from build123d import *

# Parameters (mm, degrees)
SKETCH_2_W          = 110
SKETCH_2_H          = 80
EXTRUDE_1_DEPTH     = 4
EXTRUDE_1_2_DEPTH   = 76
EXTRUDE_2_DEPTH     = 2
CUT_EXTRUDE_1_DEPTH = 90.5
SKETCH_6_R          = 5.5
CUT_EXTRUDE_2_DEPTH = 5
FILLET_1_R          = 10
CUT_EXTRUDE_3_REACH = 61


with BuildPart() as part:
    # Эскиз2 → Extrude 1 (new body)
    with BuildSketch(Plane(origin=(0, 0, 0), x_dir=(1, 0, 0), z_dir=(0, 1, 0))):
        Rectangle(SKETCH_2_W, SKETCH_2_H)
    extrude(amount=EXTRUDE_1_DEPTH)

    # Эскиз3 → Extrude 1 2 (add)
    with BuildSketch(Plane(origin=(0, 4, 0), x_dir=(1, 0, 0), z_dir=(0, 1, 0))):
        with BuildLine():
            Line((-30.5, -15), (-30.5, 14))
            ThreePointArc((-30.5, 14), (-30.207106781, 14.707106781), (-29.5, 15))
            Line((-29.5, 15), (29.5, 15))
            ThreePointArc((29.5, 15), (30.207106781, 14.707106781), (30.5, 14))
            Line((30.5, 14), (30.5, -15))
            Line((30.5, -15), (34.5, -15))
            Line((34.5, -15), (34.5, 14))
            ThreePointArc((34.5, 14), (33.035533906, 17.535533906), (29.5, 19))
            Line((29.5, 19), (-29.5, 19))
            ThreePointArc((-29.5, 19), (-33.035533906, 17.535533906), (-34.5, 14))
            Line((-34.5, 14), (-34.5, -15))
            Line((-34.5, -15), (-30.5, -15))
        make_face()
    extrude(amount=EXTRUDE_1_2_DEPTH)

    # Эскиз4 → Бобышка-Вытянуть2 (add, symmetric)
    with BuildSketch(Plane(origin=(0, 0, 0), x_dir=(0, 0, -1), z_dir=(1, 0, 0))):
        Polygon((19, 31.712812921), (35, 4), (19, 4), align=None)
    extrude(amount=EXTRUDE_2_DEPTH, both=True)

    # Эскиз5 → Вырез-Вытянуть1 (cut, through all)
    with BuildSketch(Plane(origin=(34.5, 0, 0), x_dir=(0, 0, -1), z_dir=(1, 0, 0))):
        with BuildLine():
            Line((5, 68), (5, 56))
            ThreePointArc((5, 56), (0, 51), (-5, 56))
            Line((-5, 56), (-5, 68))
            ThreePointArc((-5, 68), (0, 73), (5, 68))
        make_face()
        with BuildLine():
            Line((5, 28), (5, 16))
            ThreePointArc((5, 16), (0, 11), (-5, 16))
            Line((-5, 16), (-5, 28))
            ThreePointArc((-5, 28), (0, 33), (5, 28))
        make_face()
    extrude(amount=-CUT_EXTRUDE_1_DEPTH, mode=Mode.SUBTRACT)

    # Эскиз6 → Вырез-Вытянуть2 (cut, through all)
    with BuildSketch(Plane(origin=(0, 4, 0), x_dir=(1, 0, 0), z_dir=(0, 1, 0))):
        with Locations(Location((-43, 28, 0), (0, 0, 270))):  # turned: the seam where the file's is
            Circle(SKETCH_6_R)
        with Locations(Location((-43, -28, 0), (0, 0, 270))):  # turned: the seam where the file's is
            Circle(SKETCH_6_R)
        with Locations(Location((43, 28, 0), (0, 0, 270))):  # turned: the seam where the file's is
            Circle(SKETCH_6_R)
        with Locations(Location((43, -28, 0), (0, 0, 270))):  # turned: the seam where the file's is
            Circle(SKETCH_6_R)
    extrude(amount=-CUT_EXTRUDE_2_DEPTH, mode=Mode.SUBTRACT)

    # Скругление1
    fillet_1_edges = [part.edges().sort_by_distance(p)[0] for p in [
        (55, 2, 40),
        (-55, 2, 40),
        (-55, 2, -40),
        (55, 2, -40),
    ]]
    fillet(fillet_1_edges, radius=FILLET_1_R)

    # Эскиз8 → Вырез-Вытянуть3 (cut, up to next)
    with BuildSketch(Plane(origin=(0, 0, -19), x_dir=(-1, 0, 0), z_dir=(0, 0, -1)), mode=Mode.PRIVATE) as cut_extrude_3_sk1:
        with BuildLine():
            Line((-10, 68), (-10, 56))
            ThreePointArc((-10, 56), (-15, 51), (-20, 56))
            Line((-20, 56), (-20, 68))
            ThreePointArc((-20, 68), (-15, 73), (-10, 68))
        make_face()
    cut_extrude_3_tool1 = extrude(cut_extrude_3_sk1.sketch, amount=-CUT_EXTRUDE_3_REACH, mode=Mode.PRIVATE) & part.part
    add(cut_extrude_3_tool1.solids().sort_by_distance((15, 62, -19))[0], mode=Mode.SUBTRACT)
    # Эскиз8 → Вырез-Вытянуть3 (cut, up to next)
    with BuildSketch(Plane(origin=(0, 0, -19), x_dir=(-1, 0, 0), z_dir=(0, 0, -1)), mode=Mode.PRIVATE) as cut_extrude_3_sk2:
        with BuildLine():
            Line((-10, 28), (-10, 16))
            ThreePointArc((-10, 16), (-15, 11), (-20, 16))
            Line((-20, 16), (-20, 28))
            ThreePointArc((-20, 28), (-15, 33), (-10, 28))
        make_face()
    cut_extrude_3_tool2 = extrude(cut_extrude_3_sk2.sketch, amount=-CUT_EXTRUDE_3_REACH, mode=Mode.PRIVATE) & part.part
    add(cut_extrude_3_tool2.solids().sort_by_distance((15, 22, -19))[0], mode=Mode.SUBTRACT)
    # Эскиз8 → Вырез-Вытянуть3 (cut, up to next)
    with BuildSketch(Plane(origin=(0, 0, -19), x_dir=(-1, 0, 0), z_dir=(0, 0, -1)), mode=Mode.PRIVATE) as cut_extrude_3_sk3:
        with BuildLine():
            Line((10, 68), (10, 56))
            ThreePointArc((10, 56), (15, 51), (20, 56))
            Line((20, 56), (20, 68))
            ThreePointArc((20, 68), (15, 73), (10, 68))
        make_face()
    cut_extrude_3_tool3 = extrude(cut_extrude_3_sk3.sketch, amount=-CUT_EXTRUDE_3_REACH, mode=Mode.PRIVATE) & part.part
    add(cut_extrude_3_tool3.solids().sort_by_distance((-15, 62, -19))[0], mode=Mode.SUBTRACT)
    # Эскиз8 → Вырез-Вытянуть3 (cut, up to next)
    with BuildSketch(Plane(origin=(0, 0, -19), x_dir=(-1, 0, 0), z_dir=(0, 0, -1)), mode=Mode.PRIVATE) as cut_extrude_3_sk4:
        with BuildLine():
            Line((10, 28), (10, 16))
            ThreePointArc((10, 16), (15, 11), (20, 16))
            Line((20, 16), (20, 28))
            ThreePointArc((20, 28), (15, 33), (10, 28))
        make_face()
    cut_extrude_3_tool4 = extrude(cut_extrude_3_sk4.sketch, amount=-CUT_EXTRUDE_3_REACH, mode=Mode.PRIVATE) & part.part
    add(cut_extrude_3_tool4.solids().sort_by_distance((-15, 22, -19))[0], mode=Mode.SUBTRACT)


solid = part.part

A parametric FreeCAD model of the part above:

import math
import FreeCAD as App
import Part
import Sketcher
from FreeCAD import Vector
Q = App.Units.Quantity


def edges_at(feature, points):
    """Names of the edges that pass closest to the given points."""
    edges = feature.Shape.Edges
    near = lambda p: min(range(len(edges)), key=lambda i: edges[i].distToShape(Part.Vertex(*p))[0])
    return sorted({f"Edge{near(p) + 1}" for p in points})

doc = App.newDocument("Part")
body = doc.addObject("PartDesign::Body", "Body")

# Sketch on XZ plane
sketch1 = body.newObject("Sketcher::SketchObject", "Sketch")
sketch1.AttachmentSupport = (doc.getObject("XZ_Plane"), [""])
sketch1.MapMode = "FlatFace"
sketch1.addGeometry([
    Part.LineSegment(Vector(-55, -40, 0), Vector(-55, 40, 0)),
    Part.LineSegment(Vector(-55, 40, 0), Vector(55, 40, 0)),
    Part.LineSegment(Vector(55, 40, 0), Vector(55, -40, 0)),
    Part.LineSegment(Vector(55, -40, 0), Vector(-55, -40, 0)),
], False)
sketch1.addConstraint([
    Sketcher.Constraint("Coincident", 0, 2, 1, 1),
    Sketcher.Constraint("Coincident", 1, 2, 2, 1),
    Sketcher.Constraint("Coincident", 2, 2, 3, 1),
    Sketcher.Constraint("Coincident", 3, 2, 0, 1),
    Sketcher.Constraint("Vertical", 0),
    Sketcher.Constraint("Horizontal", 1),
    Sketcher.Constraint("Vertical", 2),
    Sketcher.Constraint("Horizontal", 3),
    Sketcher.Constraint("Symmetric", 0, 2, 2, 2, -1, 1),
    Sketcher.Constraint("DistanceX", 1, 1, 1, 2, Q("110 mm")),
    Sketcher.Constraint("DistanceY", 0, 1, 0, 2, Q("80 mm")),
])
pad1 = body.newObject("PartDesign::Pad", "Pad")
pad1.Profile = sketch1
pad1.Length = 4
pad1.Reversed = True

# Sketch on XZ plane
sketch2 = body.newObject("Sketcher::SketchObject", "Sketch001")
sketch2.AttachmentSupport = (doc.getObject("XZ_Plane"), [""])
sketch2.MapMode = "FlatFace"
sketch2.AttachmentOffset = App.Placement(Vector(0, 0, -4), App.Rotation())
sketch2.addGeometry([
    Part.LineSegment(Vector(-30.5, 15, 0), Vector(-30.5, -14, 0)),  # 0
    Part.ArcOfCircle(Part.Circle(Vector(-29.5, -14, 0), Vector(0, 0, 1), 1), math.radians(-180), math.radians(-90)),  # 1
    Part.LineSegment(Vector(-29.5, -15, 0), Vector(29.5, -15, 0)),  # 2
    Part.ArcOfCircle(Part.Circle(Vector(29.5, -14, 0), Vector(0, 0, 1), 1), math.radians(-90), math.radians(0)),  # 3
    Part.LineSegment(Vector(30.5, -14, 0), Vector(30.5, 15, 0)),  # 4
    Part.LineSegment(Vector(30.5, 15, 0), Vector(34.5, 15, 0)),  # 5
    Part.LineSegment(Vector(34.5, 15, 0), Vector(34.5, -14, 0)),  # 6
    Part.ArcOfCircle(Part.Circle(Vector(29.5, -14, 0), Vector(0, 0, 1), 5), math.radians(-90), math.radians(0)),  # 7
    Part.LineSegment(Vector(29.5, -19, 0), Vector(-29.5, -19, 0)),  # 8
    Part.ArcOfCircle(Part.Circle(Vector(-29.5, -14, 0), Vector(0, 0, 1), 5), math.radians(180), math.radians(270)),  # 9
    Part.LineSegment(Vector(-34.5, -14, 0), Vector(-34.5, 15, 0)),  # 10
    Part.LineSegment(Vector(-34.5, 15, 0), Vector(-30.5, 15, 0)),  # 11
], False)
sketch2.addConstraint([
    Sketcher.Constraint("Tangent", 0, 2, 1, 1),
    Sketcher.Constraint("Tangent", 1, 2, 2, 1),
    Sketcher.Constraint("Tangent", 2, 2, 3, 1),
    Sketcher.Constraint("Tangent", 3, 2, 4, 1),
    Sketcher.Constraint("Coincident", 4, 2, 5, 1),
    Sketcher.Constraint("Coincident", 5, 2, 6, 1),
    Sketcher.Constraint("Tangent", 6, 2, 7, 2),
    Sketcher.Constraint("Tangent", 7, 1, 8, 1),
    Sketcher.Constraint("Tangent", 8, 2, 9, 2),
    Sketcher.Constraint("Tangent", 9, 1, 10, 1),
    Sketcher.Constraint("Coincident", 10, 2, 11, 1),
    Sketcher.Constraint("Coincident", 11, 2, 0, 1),
    Sketcher.Constraint("Vertical", 0),
    Sketcher.Constraint("Horizontal", 2),
    Sketcher.Constraint("Vertical", 4),
    Sketcher.Constraint("Horizontal", 5),
    Sketcher.Constraint("Vertical", 6),
    Sketcher.Constraint("Horizontal", 8),
    Sketcher.Constraint("Vertical", 10),
    Sketcher.Constraint("Horizontal", 11),
    Sketcher.Constraint("Coincident", 7, 3, 3, 3),
    Sketcher.Constraint("Coincident", 9, 3, 1, 3),
    Sketcher.Constraint("Equal", 1, 3),
    Sketcher.Constraint("Symmetric", 5, 2, 10, 2, -2),
    Sketcher.Constraint("Radius", 1, Q("1 mm")),
    Sketcher.Constraint("Radius", 7, Q("5 mm")),
    Sketcher.Constraint("DistanceX", 2, 1, 2, 2, Q("59 mm")),
    Sketcher.Constraint("DistanceY", 0, 2, 0, 1, Q("29 mm")),
    Sketcher.Constraint("DistanceY", 1, 3, -1, 1, Q("14 mm")),
])
pad2 = body.newObject("PartDesign::Pad", "Pad001")
pad2.Profile = sketch2
pad2.Length = 76
pad2.Reversed = True

# Sketch on YZ plane
sketch3 = body.newObject("Sketcher::SketchObject", "Sketch002")
sketch3.AttachmentSupport = (doc.getObject("YZ_Plane"), [""])
sketch3.MapMode = "FlatFace"
sketch3.addGeometry([
    Part.LineSegment(Vector(4, -35, 0), Vector(32, -19, 0)),
    Part.LineSegment(Vector(32, -19, 0), Vector(4, -19, 0)),
    Part.LineSegment(Vector(4, -19, 0), Vector(4, -35, 0)),
], False)
sketch3.addConstraint([
    Sketcher.Constraint("Coincident", 0, 2, 1, 1),
    Sketcher.Constraint("Coincident", 1, 2, 2, 1),
    Sketcher.Constraint("Coincident", 2, 2, 0, 1),
    Sketcher.Constraint("Horizontal", 1),
    Sketcher.Constraint("Vertical", 2),
    Sketcher.Constraint("DistanceY", 2, 2, 2, 1, Q("16 mm")),
    Sketcher.Constraint("Angle", 0, Q("30 deg")),
    Sketcher.Constraint("DistanceY", 0, 2, -1, 1, Q("19 mm")),
    Sketcher.Constraint("DistanceX", -1, 1, 1, 2, Q("4 mm")),
])
pad3 = body.newObject("PartDesign::Pad", "Pad002")
pad3.Profile = sketch3
pad3.Length = 4
pad3.Midplane = True

# Sketch on YZ plane
sketch4 = body.newObject("Sketcher::SketchObject", "Sketch003")
sketch4.AttachmentSupport = (doc.getObject("YZ_Plane"), [""])
sketch4.MapMode = "FlatFace"
sketch4.AttachmentOffset = App.Placement(Vector(0, 0, 34.5), App.Rotation())
sketch4.addGeometry([
    Part.LineSegment(Vector(56, -5, 0), Vector(68, -5, 0)),  # 0
    Part.ArcOfCircle(Part.Circle(Vector(68, 0, 0), Vector(0, 0, 1), 5), math.radians(-90), math.radians(90)),  # 1
    Part.LineSegment(Vector(68, 5, 0), Vector(56, 5, 0)),  # 2
    Part.ArcOfCircle(Part.Circle(Vector(56, 0, 0), Vector(0, 0, 1), 5), math.radians(90), math.radians(270)),  # 3
    Part.LineSegment(Vector(16, -5, 0), Vector(28, -5, 0)),  # 4
    Part.ArcOfCircle(Part.Circle(Vector(28, 0, 0), Vector(0, 0, 1), 5), math.radians(-90), math.radians(90)),  # 5
    Part.LineSegment(Vector(28, 5, 0), Vector(16, 5, 0)),  # 6
    Part.ArcOfCircle(Part.Circle(Vector(16, 0, 0), Vector(0, 0, 1), 5), math.radians(90), math.radians(270)),  # 7
], False)
sketch4.addConstraint([
    Sketcher.Constraint("Tangent", 0, 2, 1, 1),
    Sketcher.Constraint("Tangent", 1, 2, 2, 1),
    Sketcher.Constraint("Tangent", 2, 2, 3, 1),
    Sketcher.Constraint("Tangent", 3, 2, 0, 1),
    Sketcher.Constraint("Tangent", 4, 2, 5, 1),
    Sketcher.Constraint("Tangent", 5, 2, 6, 1),
    Sketcher.Constraint("Tangent", 6, 2, 7, 1),
    Sketcher.Constraint("Tangent", 7, 2, 4, 1),
    Sketcher.Constraint("Horizontal", 0),
    Sketcher.Constraint("Horizontal", 2),
    Sketcher.Constraint("Horizontal", 4),
    Sketcher.Constraint("Horizontal", 6),
    Sketcher.Constraint("Equal", 3, 5),
    Sketcher.Constraint("PointOnObject", 1, 3, -1),
    Sketcher.Constraint("PointOnObject", 5, 3, -1),
    Sketcher.Constraint("Equal", 2, 4),
    Sketcher.Constraint("Radius", 1, Q("5 mm")),
    Sketcher.Constraint("DistanceX", 0, 1, 0, 2, Q("12 mm")),
    Sketcher.Constraint("DistanceX", -1, 1, 1, 3, Q("68 mm")),
    Sketcher.Constraint("DistanceX", -1, 1, 5, 3, Q("28 mm")),
])
pocket1 = body.newObject("PartDesign::Pocket", "Pocket")
pocket1.Profile = sketch4
pocket1.Type = "ThroughAll"

# Sketch on XZ plane
sketch5 = body.newObject("Sketcher::SketchObject", "Sketch004")
sketch5.AttachmentSupport = (doc.getObject("XZ_Plane"), [""])
sketch5.MapMode = "FlatFace"
sketch5.AttachmentOffset = App.Placement(Vector(0, 0, -4), App.Rotation())
sketch5.addGeometry([
    Part.Circle(Vector(-43, -28, 0), Vector(0, 0, 1), 6),
    Part.Circle(Vector(-43, 28, 0), Vector(0, 0, 1), 6),
    Part.Circle(Vector(43, -28, 0), Vector(0, 0, 1), 6),
    Part.Circle(Vector(43, 28, 0), Vector(0, 0, 1), 6),
], False)
sketch5.addConstraint([
    Sketcher.Constraint("Equal", 0, 1),
    Sketcher.Constraint("Equal", 1, 2),
    Sketcher.Constraint("Equal", 2, 3),
    Sketcher.Constraint("Symmetric", 1, 3, 2, 3, -1, 1),
    Sketcher.Constraint("Symmetric", 0, 3, 3, 3, -1, 1),
    Sketcher.Constraint("Symmetric", 0, 3, 2, 3, -2),
    Sketcher.Constraint("Diameter", 0, Q("11 mm")),
    Sketcher.Constraint("DistanceX", 0, 3, -1, 1, Q("43 mm")),
    Sketcher.Constraint("DistanceY", 0, 3, -1, 1, Q("28 mm")),
])
pocket2 = body.newObject("PartDesign::Pocket", "Pocket001")
pocket2.Profile = sketch5
pocket2.Type = "ThroughAll"
pocket2.Reversed = True
doc.recompute()

fillet = body.newObject("PartDesign::Fillet", "Fillet")
fillet.Base = (pocket2, edges_at(pocket2, [
    (55, 2, 40),
    (-55, 2, 40),
    (-55, 2, -40),
    (55, 2, -40),
]))
fillet.Radius = 10

# Sketch on XY plane
sketch6 = body.newObject("Sketcher::SketchObject", "Sketch005")
sketch6.AttachmentSupport = (doc.getObject("XY_Plane"), [""])
sketch6.MapMode = "FlatFace"
sketch6.AttachmentOffset = App.Placement(Vector(0, 0, -19), App.Rotation())
sketch6.addGeometry([
    Part.LineSegment(Vector(10, 56, 0), Vector(10, 68, 0)),
    Part.ArcOfCircle(Part.Circle(Vector(15, 68, 0), Vector(0, 0, 1), 5), math.radians(0), math.radians(180)),
    Part.LineSegment(Vector(20, 68, 0), Vector(20, 56, 0)),
    Part.ArcOfCircle(Part.Circle(Vector(15, 56, 0), Vector(0, 0, 1), 5), math.radians(180), math.radians(360)),
], False)
sketch6.addConstraint([
    Sketcher.Constraint("Tangent", 0, 2, 1, 2),
    Sketcher.Constraint("Tangent", 1, 1, 2, 1),
    Sketcher.Constraint("Tangent", 2, 2, 3, 2),
    Sketcher.Constraint("Tangent", 3, 1, 0, 1),
    Sketcher.Constraint("Vertical", 0),
    Sketcher.Constraint("Vertical", 2),
    Sketcher.Constraint("Radius", 1, Q("5 mm")),
    Sketcher.Constraint("DistanceY", 0, 1, 0, 2, Q("12 mm")),
    Sketcher.Constraint("DistanceX", -1, 1, 1, 3, Q("15 mm")),
    Sketcher.Constraint("DistanceY", -1, 1, 1, 3, Q("68 mm")),
])
pocket3 = body.newObject("PartDesign::Pocket", "Pocket002")
pocket3.Profile = sketch6
pocket3.Type = "UpToFirst"
pocket3.Reversed = True

# Sketch on XY plane
sketch7 = body.newObject("Sketcher::SketchObject", "Sketch006")
sketch7.AttachmentSupport = (doc.getObject("XY_Plane"), [""])
sketch7.MapMode = "FlatFace"
sketch7.AttachmentOffset = App.Placement(Vector(0, 0, -19), App.Rotation())
sketch7.addGeometry([
    Part.LineSegment(Vector(10, 16, 0), Vector(10, 28, 0)),
    Part.ArcOfCircle(Part.Circle(Vector(15, 28, 0), Vector(0, 0, 1), 5), math.radians(0), math.radians(180)),
    Part.LineSegment(Vector(20, 28, 0), Vector(20, 16, 0)),
    Part.ArcOfCircle(Part.Circle(Vector(15, 16, 0), Vector(0, 0, 1), 5), math.radians(180), math.radians(360)),
], False)
sketch7.addConstraint([
    Sketcher.Constraint("Tangent", 0, 2, 1, 2),
    Sketcher.Constraint("Tangent", 1, 1, 2, 1),
    Sketcher.Constraint("Tangent", 2, 2, 3, 2),
    Sketcher.Constraint("Tangent", 3, 1, 0, 1),
    Sketcher.Constraint("Vertical", 0),
    Sketcher.Constraint("Vertical", 2),
    Sketcher.Constraint("Radius", 1, Q("5 mm")),
    Sketcher.Constraint("DistanceY", 0, 1, 0, 2, Q("12 mm")),
    Sketcher.Constraint("DistanceX", -1, 1, 1, 3, Q("15 mm")),
    Sketcher.Constraint("DistanceY", -1, 1, 1, 3, Q("28 mm")),
])
pocket4 = body.newObject("PartDesign::Pocket", "Pocket003")
pocket4.Profile = sketch7
pocket4.Type = "UpToFirst"
pocket4.Reversed = True

# Sketch on XY plane
sketch8 = body.newObject("Sketcher::SketchObject", "Sketch007")
sketch8.AttachmentSupport = (doc.getObject("XY_Plane"), [""])
sketch8.MapMode = "FlatFace"
sketch8.AttachmentOffset = App.Placement(Vector(0, 0, -19), App.Rotation())
sketch8.addGeometry([
    Part.LineSegment(Vector(-10, 68, 0), Vector(-10, 56, 0)),
    Part.ArcOfCircle(Part.Circle(Vector(-15, 56, 0), Vector(0, 0, 1), 5), math.radians(180), math.radians(360)),
    Part.LineSegment(Vector(-20, 56, 0), Vector(-20, 68, 0)),
    Part.ArcOfCircle(Part.Circle(Vector(-15, 68, 0), Vector(0, 0, 1), 5), math.radians(0), math.radians(180)),
], False)
sketch8.addConstraint([
    Sketcher.Constraint("Tangent", 0, 2, 1, 2),
    Sketcher.Constraint("Tangent", 1, 1, 2, 1),
    Sketcher.Constraint("Tangent", 2, 2, 3, 2),
    Sketcher.Constraint("Tangent", 3, 1, 0, 1),
    Sketcher.Constraint("Vertical", 0),
    Sketcher.Constraint("Vertical", 2),
    Sketcher.Constraint("Radius", 1, Q("5 mm")),
    Sketcher.Constraint("DistanceY", 0, 2, 0, 1, Q("12 mm")),
    Sketcher.Constraint("DistanceX", 1, 3, -1, 1, Q("15 mm")),
    Sketcher.Constraint("DistanceY", -1, 1, 1, 3, Q("56 mm")),
])
pocket5 = body.newObject("PartDesign::Pocket", "Pocket004")
pocket5.Profile = sketch8
pocket5.Type = "UpToFirst"
pocket5.Reversed = True

# Sketch on XY plane
sketch9 = body.newObject("Sketcher::SketchObject", "Sketch008")
sketch9.AttachmentSupport = (doc.getObject("XY_Plane"), [""])
sketch9.MapMode = "FlatFace"
sketch9.AttachmentOffset = App.Placement(Vector(0, 0, -19), App.Rotation())
sketch9.addGeometry([
    Part.LineSegment(Vector(-10, 28, 0), Vector(-10, 16, 0)),
    Part.ArcOfCircle(Part.Circle(Vector(-15, 16, 0), Vector(0, 0, 1), 5), math.radians(180), math.radians(360)),
    Part.LineSegment(Vector(-20, 16, 0), Vector(-20, 28, 0)),
    Part.ArcOfCircle(Part.Circle(Vector(-15, 28, 0), Vector(0, 0, 1), 5), math.radians(0), math.radians(180)),
], False)
sketch9.addConstraint([
    Sketcher.Constraint("Tangent", 0, 2, 1, 2),
    Sketcher.Constraint("Tangent", 1, 1, 2, 1),
    Sketcher.Constraint("Tangent", 2, 2, 3, 2),
    Sketcher.Constraint("Tangent", 3, 1, 0, 1),
    Sketcher.Constraint("Vertical", 0),
    Sketcher.Constraint("Vertical", 2),
    Sketcher.Constraint("Radius", 1, Q("5 mm")),
    Sketcher.Constraint("DistanceY", 0, 2, 0, 1, Q("12 mm")),
    Sketcher.Constraint("DistanceX", 1, 3, -1, 1, Q("15 mm")),
    Sketcher.Constraint("DistanceY", -1, 1, 1, 3, Q("16 mm")),
])
pocket6 = body.newObject("PartDesign::Pocket", "Pocket005")
pocket6.Profile = sketch9
pocket6.Type = "UpToFirst"
pocket6.Reversed = True

doc.recompute()
